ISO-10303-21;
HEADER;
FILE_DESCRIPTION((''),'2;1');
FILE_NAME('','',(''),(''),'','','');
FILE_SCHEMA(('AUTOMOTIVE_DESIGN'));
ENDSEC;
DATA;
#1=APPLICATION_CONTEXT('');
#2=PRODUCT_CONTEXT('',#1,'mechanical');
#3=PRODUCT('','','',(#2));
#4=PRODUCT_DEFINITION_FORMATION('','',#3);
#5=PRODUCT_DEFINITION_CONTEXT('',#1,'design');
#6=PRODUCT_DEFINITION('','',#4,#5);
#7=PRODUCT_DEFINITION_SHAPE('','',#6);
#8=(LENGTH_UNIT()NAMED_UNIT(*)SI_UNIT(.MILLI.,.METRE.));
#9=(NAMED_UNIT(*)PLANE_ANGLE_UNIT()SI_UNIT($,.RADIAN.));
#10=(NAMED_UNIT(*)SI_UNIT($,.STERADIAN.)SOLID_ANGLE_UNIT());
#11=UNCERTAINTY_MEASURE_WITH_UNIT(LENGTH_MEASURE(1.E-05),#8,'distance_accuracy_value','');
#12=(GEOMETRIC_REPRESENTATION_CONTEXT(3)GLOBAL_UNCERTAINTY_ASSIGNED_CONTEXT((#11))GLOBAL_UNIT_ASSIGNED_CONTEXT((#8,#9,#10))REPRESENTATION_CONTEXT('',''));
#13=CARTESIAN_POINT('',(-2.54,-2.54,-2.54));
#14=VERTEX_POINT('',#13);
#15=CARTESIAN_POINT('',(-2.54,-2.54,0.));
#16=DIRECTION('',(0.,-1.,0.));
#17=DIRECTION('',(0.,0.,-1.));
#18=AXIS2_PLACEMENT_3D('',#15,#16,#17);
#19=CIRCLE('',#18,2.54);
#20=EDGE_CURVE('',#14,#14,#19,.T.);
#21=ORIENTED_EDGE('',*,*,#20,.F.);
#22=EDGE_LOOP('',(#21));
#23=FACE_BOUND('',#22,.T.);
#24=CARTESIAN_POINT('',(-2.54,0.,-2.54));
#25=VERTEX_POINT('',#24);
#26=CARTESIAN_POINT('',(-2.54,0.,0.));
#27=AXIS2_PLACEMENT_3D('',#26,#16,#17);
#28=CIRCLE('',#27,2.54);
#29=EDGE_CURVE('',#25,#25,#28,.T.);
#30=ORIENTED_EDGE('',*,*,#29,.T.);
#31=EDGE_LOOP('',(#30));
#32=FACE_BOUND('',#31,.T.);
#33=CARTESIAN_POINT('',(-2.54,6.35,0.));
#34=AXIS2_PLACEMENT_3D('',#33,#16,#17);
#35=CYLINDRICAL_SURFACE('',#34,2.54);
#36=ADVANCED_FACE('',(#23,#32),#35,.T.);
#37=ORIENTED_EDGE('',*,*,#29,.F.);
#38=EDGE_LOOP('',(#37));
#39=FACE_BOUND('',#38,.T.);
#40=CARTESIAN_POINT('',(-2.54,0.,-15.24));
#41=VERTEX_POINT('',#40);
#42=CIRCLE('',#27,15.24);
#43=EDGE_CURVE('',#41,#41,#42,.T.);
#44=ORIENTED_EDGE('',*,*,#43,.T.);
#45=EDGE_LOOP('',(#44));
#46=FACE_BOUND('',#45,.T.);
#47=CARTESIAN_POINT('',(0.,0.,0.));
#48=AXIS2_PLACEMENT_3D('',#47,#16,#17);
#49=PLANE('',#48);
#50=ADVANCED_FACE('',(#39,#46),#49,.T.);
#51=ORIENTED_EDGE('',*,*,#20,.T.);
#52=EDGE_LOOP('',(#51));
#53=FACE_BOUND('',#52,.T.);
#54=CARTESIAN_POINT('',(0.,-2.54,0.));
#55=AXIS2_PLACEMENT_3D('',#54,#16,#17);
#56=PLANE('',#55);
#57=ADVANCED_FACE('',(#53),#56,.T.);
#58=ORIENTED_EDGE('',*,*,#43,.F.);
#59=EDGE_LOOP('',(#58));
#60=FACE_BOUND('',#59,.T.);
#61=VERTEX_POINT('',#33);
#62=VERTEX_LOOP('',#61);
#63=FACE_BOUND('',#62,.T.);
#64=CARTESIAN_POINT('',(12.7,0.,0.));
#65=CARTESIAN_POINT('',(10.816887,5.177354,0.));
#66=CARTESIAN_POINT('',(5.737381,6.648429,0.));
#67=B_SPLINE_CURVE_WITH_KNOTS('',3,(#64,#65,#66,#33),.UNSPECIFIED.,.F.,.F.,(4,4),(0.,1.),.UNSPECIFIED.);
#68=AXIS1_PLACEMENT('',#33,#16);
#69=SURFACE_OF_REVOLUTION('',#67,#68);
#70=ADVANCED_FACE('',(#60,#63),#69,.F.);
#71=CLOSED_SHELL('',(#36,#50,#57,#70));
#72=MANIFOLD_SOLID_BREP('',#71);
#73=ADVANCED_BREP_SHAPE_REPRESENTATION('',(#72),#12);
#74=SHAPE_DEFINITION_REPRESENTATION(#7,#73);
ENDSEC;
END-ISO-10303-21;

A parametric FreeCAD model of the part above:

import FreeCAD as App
import Part
import Sketcher
Q = App.Units.Quantity

doc = App.newDocument("Part")
body = doc.addObject("PartDesign::Body", "Body")

sketch1 = body.newObject("Sketcher::SketchObject", "Sketch")
sketch1.AttachmentSupport = (doc.getObject("XY_Plane"), [""])
sketch1.MapMode = "FlatFace"
sketch1.addGeometry([
    Part.LineSegment(App.Vector(0, 0, 0), App.Vector(12.7, 0, 0)),
    Part.BSplineCurve([App.Vector(-2.54, 6.35, 0), App.Vector(5.737381, 6.648429, 0), App.Vector(10.816887, 5.177354, 0), App.Vector(12.7, 0, 0)], [4, 4], [0, 1], False, 3, [1, 1, 1, 1], False),
    Part.LineSegment(App.Vector(-2.54, 6.35, 0), App.Vector(-2.54, -2.54, 0)),
    Part.LineSegment(App.Vector(-2.54, -2.54, 0), App.Vector(0, -2.54, 0)),
    Part.LineSegment(App.Vector(0, -2.54, 0), App.Vector(0, 0, 0)),
], False)
sketch1.addGeometry(Part.LineSegment(App.Vector(-2.54, -2.54, 0), App.Vector(-2.54, 6.35, 0)), True)
sketch1.addConstraint([
    Sketcher.Constraint("Block", 1),
    Sketcher.Constraint("Coincident", 0, 2, 1, 2),
    Sketcher.Constraint("Coincident", 1, 1, 2, 1),
    Sketcher.Constraint("Coincident", 2, 2, 3, 1),
    Sketcher.Constraint("Coincident", 3, 2, 4, 1),
    Sketcher.Constraint("Coincident", 4, 2, 0, 1),
    Sketcher.Constraint("Horizontal", 0),
    Sketcher.Constraint("Vertical", 2),
    Sketcher.Constraint("Horizontal", 3),
    Sketcher.Constraint("Vertical", 4),
    Sketcher.Constraint("Vertical", 5),
    Sketcher.Constraint("Coincident", 5, 1, 2, 2),
    Sketcher.Constraint("PointOnObject", 3, 2, -2),
    Sketcher.Constraint("DistanceY", 4, 1, 4, 2, Q("0.1 in")),
    Sketcher.Constraint("DistanceY", 5, 1, 5, 2, Q("0.35 in")),
])
revolution = body.newObject("PartDesign::Revolution", "Revolution")
revolution.Profile = sketch1
revolution.ReferenceAxis = (sketch1, ["Axis0"])
revolution.Angle = 360

doc.recompute()
